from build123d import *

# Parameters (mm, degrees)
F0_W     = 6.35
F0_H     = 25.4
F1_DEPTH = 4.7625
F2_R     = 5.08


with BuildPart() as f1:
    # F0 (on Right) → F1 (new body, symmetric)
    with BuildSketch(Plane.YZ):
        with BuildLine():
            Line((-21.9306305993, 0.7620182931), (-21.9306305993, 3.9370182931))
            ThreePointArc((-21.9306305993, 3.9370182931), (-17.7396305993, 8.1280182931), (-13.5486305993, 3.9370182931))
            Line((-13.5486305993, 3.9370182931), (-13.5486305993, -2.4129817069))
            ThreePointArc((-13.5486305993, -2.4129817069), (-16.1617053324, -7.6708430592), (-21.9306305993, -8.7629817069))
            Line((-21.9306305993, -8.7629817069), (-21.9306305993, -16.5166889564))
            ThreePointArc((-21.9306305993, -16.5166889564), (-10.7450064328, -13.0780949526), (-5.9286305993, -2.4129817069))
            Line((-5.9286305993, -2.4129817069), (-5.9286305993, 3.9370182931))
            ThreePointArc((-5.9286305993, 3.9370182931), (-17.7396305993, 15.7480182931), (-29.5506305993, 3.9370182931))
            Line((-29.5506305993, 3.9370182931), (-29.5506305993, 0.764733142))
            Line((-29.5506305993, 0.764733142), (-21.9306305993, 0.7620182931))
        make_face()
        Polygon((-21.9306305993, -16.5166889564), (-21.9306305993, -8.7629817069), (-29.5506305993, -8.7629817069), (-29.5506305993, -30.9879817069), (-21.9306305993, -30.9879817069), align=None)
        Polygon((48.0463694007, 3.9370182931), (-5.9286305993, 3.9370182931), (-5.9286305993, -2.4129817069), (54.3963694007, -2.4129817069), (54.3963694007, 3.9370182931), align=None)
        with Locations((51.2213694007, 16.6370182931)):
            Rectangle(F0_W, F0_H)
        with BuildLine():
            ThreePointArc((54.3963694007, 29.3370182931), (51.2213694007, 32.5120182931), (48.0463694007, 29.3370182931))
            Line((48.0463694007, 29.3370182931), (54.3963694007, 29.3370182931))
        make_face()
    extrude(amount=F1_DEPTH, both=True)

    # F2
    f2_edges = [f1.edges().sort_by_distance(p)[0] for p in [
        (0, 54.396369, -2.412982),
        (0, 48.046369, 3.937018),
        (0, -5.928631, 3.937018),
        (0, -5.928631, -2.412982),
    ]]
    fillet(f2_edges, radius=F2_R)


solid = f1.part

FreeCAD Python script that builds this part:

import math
import FreeCAD as App
import Part
import Sketcher

V = App.Vector
Q = App.Units.Quantity


def edges_at(feature, points):
    """Names of the edges that pass closest to the given points."""
    edges = feature.Shape.Edges
    near = lambda p: min(range(len(edges)), key=lambda i: edges[i].distToShape(Part.Vertex(*p))[0])
    return sorted({f"Edge{near(p) + 1}" for p in points})

doc = App.newDocument("Part")
body = doc.addObject("PartDesign::Body", "Body")

# Sketch on YZ plane
sketch1 = doc.addObject("Sketcher::SketchObject", "Sketch")
body.addObject(sketch1)
sketch1.AttachmentSupport = (doc.YZ_Plane, [""])
sketch1.MapMode = "FlatFace"
sketch1.addGeometry([
    Part.LineSegment(V(-21.9, 0.8, 0), V(-21.9, 3.9, 0)),  # 0
    Part.ArcOfCircle(Part.Circle(V(-17.7, 3.9, 0), V(0, 0, 1), 4.2), math.radians(0), math.radians(180)),  # 1
    Part.LineSegment(V(-13.5, 3.9, 0), V(-13.5, -2.4, 0)),  # 2
    Part.ArcOfCircle(Part.Circle(V(-20.1, -2.4, 0), V(0, 0, 1), 6.6), math.radians(-106), math.radians(0)),  # 3
    Part.LineSegment(V(-21.9, -8.8, 0), V(-29.6, -8.8, 0)),  # 4
    Part.LineSegment(V(-29.6, -8.8, 0), V(-29.6, -31, 0)),  # 5
    Part.LineSegment(V(-29.6, -31, 0), V(-21.9, -31, 0)),  # 6
    Part.LineSegment(V(-21.9, -31, 0), V(-21.9, -16.5, 0)),  # 7
    Part.ArcOfCircle(Part.Circle(V(-20.1, -2.4, 0), V(0, 0, 1), 14.2), math.radians(-97), math.radians(0)),  # 8
    Part.LineSegment(V(-5.9, -2.4, 0), V(54.4, -2.4, 0)),  # 9
    Part.LineSegment(V(54.4, -2.4, 0), V(54.4, 29.3, 0)),  # 10
    Part.ArcOfCircle(Part.Circle(V(51.2, 29.3, 0), V(0, 0, 1), 3.2), math.radians(0), math.radians(180)),  # 11
    Part.LineSegment(V(48, 29.3, 0), V(48, 3.9, 0)),  # 12
    Part.LineSegment(V(48, 3.9, 0), V(-5.9, 3.9, 0)),  # 13
    Part.ArcOfCircle(Part.Circle(V(-17.7, 3.9, 0), V(0, 0, 1), 11.8), math.radians(0), math.radians(180)),  # 14
    Part.LineSegment(V(-29.6, 3.9, 0), V(-29.6, 0.8, 0)),  # 15
    Part.LineSegment(V(-29.6, 0.8, 0), V(-21.9, 0.8, 0)),  # 16
], False)
sketch1.addConstraint([
    Sketcher.Constraint("Tangent", 0, 2, 1, 2),
    Sketcher.Constraint("Tangent", 1, 1, 2, 1),
    Sketcher.Constraint("Tangent", 2, 2, 3, 2),
    Sketcher.Constraint("Coincident", 3, 1, 4, 1),
    Sketcher.Constraint("Coincident", 4, 2, 5, 1),
    Sketcher.Constraint("Coincident", 5, 2, 6, 1),
    Sketcher.Constraint("Coincident", 6, 2, 7, 1),
    Sketcher.Constraint("Coincident", 7, 2, 8, 1),
    Sketcher.Constraint("Coincident", 8, 2, 9, 1),
    Sketcher.Constraint("Coincident", 9, 2, 10, 1),
    Sketcher.Constraint("Tangent", 10, 2, 11, 1),
    Sketcher.Constraint("Tangent", 11, 2, 12, 1),
    Sketcher.Constraint("Coincident", 12, 2, 13, 1),
    Sketcher.Constraint("Coincident", 13, 2, 14, 1),
    Sketcher.Constraint("Tangent", 14, 2, 15, 1),
    Sketcher.Constraint("Coincident", 15, 2, 16, 1),
    Sketcher.Constraint("Coincident", 16, 2, 0, 1),
    Sketcher.Constraint("Vertical", 0),
    Sketcher.Constraint("Vertical", 2),
    Sketcher.Constraint("Horizontal", 4),
    Sketcher.Constraint("Vertical", 5),
    Sketcher.Constraint("Horizontal", 6),
    Sketcher.Constraint("Vertical", 7),
    Sketcher.Constraint("Horizontal", 9),
    Sketcher.Constraint("Vertical", 10),
    Sketcher.Constraint("Vertical", 12),
    Sketcher.Constraint("Horizontal", 13),
    Sketcher.Constraint("Vertical", 15),
    Sketcher.Constraint("Coincident", 8, 3, 3, 3),
    Sketcher.Constraint("Coincident", 14, 3, 1, 3),
    Sketcher.Constraint("Horizontal", 2, 2, 8, 2),
    Sketcher.Constraint("Horizontal", 1, 1, 12, 2),
    Sketcher.Constraint("Vertical", 0, 2, 3, 1),
    Sketcher.Constraint("Vertical", 3, 1, 6, 2),
    Sketcher.Constraint("Vertical", 8, 2, 13, 2),
    Sketcher.Constraint("Vertical", 5, 2, 14, 2),
    Sketcher.Constraint("DistanceY", 12, 2, 12, 1, Q("1 in")),
    Sketcher.Constraint("DistanceX", 4, 2, 4, 1, Q("0.3 in")),
    Sketcher.Constraint("Radius", 1, Q("0.165 in")),
    Sketcher.Constraint("Radius", 11, Q("0.125 in")),
    Sketcher.Constraint("DistanceY", 2, 2, 2, 1, Q("0.25 in")),
    Sketcher.Constraint("DistanceY", 3, 1, 0, 2, Q("0.5 in")),
    Sketcher.Constraint("DistanceX", 9, 1, 9, 2, Q("2.375 in")),
    Sketcher.Constraint("DistanceY", 0, 1, 0, 2, Q("0.125 in")),
    Sketcher.Constraint("DistanceY", 5, 2, 5, 1, Q("0.875 in")),
    Sketcher.Constraint("DistanceY", 15, 2, 15, 1, Q("3.172285 mm")),
    Sketcher.Constraint("DistanceX", 1, 3, -1, 1, Q("17.739631 mm")),
    Sketcher.Constraint("DistanceY", -1, 1, 1, 3, Q("3.937018 mm")),
])
pad1 = doc.addObject("PartDesign::Pad", "Pad")
body.addObject(pad1)
pad1.Profile = sketch1
pad1.Length = Q("0.375 in")
pad1.Midplane = True
doc.recompute()

fillet = doc.addObject("PartDesign::Fillet", "Fillet")
body.addObject(fillet)
fillet.Base = (pad1, edges_at(pad1, [
    (0, 54.396, -2.413),
    (0, 48.046, 3.937),
    (0, -5.929, 3.937),
    (0, -5.929, -2.413),
]))
fillet.Radius = Q("0.2 in")

doc.recompute()
